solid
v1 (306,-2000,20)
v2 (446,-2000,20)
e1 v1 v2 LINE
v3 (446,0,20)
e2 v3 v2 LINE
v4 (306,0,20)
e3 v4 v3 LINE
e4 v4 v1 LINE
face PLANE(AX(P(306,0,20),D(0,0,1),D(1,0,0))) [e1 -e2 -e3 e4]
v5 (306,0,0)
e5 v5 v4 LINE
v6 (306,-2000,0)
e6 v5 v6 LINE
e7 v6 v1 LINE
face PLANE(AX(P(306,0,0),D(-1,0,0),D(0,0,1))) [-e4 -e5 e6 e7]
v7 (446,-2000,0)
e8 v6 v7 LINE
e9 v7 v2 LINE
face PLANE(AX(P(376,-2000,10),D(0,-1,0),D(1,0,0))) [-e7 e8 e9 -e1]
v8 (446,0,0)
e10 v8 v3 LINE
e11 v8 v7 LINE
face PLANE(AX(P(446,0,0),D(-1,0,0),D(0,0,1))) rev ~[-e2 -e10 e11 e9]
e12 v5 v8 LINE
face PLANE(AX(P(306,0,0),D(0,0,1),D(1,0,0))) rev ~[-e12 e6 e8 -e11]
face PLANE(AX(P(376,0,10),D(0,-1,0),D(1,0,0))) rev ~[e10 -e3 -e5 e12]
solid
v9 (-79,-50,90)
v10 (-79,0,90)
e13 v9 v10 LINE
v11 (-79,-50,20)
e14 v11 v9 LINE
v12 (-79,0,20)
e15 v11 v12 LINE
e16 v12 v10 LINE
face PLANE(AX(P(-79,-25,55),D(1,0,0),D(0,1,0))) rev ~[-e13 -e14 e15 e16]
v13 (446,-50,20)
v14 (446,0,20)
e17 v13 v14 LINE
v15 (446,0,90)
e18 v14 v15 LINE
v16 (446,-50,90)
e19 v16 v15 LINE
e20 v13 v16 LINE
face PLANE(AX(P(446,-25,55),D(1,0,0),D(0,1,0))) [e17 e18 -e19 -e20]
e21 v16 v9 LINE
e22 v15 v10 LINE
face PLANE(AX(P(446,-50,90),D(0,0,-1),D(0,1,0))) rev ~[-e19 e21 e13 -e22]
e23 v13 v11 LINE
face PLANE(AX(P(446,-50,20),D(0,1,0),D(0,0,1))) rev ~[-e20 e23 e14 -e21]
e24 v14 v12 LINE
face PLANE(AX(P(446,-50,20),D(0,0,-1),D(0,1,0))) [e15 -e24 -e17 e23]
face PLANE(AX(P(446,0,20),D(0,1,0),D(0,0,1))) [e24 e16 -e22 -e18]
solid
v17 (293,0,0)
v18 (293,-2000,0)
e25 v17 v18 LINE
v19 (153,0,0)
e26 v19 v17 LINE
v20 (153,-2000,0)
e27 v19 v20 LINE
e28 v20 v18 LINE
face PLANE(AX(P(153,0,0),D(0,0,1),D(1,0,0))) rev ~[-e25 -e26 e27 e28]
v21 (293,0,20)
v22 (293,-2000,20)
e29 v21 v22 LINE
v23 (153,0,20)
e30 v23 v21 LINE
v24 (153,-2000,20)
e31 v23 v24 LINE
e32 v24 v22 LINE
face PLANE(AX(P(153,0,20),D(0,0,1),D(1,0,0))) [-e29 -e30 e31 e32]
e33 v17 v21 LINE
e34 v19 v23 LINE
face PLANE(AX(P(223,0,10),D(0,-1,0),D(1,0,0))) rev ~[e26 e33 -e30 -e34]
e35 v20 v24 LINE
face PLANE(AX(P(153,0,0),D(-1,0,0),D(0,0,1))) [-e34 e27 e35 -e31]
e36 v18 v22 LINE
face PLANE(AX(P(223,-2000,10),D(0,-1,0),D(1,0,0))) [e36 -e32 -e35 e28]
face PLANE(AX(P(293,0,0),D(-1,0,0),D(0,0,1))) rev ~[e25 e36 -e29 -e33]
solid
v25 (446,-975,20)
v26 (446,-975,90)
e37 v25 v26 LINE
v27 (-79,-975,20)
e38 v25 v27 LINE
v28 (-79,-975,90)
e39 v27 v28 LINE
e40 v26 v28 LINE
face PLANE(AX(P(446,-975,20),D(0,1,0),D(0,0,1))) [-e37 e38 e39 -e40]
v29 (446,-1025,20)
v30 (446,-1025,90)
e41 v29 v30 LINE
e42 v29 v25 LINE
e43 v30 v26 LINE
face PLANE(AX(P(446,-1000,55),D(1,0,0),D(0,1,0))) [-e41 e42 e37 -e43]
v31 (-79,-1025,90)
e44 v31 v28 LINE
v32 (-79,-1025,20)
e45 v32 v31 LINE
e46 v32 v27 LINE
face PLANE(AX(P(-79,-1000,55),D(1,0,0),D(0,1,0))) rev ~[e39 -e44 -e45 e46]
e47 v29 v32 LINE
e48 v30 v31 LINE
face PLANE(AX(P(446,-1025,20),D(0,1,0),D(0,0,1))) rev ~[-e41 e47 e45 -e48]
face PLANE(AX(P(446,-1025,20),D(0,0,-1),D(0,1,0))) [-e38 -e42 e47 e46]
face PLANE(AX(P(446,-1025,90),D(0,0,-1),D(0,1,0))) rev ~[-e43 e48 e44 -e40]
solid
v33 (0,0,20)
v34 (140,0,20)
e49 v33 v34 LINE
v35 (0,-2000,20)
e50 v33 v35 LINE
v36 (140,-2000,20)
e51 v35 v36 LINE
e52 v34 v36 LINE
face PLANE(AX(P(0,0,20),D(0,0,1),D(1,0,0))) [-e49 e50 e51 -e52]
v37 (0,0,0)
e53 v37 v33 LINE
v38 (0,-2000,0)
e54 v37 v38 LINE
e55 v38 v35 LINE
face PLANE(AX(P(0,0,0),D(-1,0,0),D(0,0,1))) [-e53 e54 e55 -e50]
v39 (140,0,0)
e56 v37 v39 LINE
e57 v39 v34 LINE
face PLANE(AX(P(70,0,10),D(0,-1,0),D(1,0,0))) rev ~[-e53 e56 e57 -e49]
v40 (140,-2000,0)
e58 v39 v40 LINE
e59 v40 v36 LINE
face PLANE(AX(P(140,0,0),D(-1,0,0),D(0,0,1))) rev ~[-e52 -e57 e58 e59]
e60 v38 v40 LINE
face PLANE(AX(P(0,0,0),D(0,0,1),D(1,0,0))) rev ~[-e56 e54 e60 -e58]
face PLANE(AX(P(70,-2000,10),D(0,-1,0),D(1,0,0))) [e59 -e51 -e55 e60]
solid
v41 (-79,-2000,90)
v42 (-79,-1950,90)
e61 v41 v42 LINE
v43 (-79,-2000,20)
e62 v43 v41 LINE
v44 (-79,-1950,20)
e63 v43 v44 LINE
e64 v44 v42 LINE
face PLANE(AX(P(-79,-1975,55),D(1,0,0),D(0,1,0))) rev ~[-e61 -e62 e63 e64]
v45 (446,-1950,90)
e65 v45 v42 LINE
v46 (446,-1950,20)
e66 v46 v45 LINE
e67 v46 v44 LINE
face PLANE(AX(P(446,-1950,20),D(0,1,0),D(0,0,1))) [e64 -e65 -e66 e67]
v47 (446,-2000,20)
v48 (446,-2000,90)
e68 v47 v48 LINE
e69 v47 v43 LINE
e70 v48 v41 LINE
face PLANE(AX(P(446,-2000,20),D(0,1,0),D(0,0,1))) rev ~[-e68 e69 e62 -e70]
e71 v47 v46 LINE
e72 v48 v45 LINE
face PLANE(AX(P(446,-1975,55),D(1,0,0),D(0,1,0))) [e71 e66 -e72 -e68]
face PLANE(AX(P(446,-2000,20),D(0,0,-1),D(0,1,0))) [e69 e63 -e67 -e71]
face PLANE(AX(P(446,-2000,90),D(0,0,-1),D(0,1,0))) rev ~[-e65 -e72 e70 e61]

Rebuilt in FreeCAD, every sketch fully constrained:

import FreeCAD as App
import Part
import Sketcher
from FreeCAD import Vector

doc = App.newDocument("Part")
params = doc.addObject("Spreadsheet::Sheet", "Params")
for row, (alias, value) in enumerate([
    ("sketch1_width", "140 mm"),
    ("sketch1_height", "20 mm"),
    ("pad1_length", "2000 mm"),
    ("sketch2_width", "50 mm"),
    ("sketch2_height", "70 mm"),
    ("pad2_length", "525 mm"),
], start=1):
    params.set(f"A{row}", alias)
    params.set(f"B{row}", "=" + value)
    params.setAlias(f"B{row}", alias)

body = doc.addObject("PartDesign::Body", "Body")
body.AllowCompound = True

# Sketch on XZ plane
sketch1 = body.newObject("Sketcher::SketchObject", "Sketch")
sketch1.AttachmentSupport = (doc.getObject("XZ_Plane"), [""])
sketch1.MapMode = "FlatFace"
sketch1.addGeometry([
    Part.LineSegment(Vector(0, 20, 0), Vector(0, 0, 0)),  # 0
    Part.LineSegment(Vector(0, 0, 0), Vector(140, 0, 0)),  # 1
    Part.LineSegment(Vector(140, 0, 0), Vector(140, 20, 0)),  # 2
    Part.LineSegment(Vector(140, 20, 0), Vector(0, 20, 0)),  # 3
    Part.LineSegment(Vector(153, 20, 0), Vector(153, 0, 0)),  # 4
    Part.LineSegment(Vector(153, 0, 0), Vector(293, 0, 0)),  # 5
    Part.LineSegment(Vector(293, 0, 0), Vector(293, 20, 0)),  # 6
    Part.LineSegment(Vector(293, 20, 0), Vector(153, 20, 0)),  # 7
    Part.LineSegment(Vector(306, 20, 0), Vector(306, 0, 0)),  # 8
    Part.LineSegment(Vector(306, 0, 0), Vector(446, 0, 0)),  # 9
    Part.LineSegment(Vector(446, 0, 0), Vector(446, 20, 0)),  # 10
    Part.LineSegment(Vector(446, 20, 0), Vector(306, 20, 0)),  # 11
], False)
sketch1.addConstraint([
    Sketcher.Constraint("Coincident", 0, 2, 1, 1),
    Sketcher.Constraint("Coincident", 1, 2, 2, 1),
    Sketcher.Constraint("Coincident", 2, 2, 3, 1),
    Sketcher.Constraint("Coincident", 3, 2, 0, 1),
    Sketcher.Constraint("Coincident", 4, 2, 5, 1),
    Sketcher.Constraint("Coincident", 5, 2, 6, 1),
    Sketcher.Constraint("Coincident", 6, 2, 7, 1),
    Sketcher.Constraint("Coincident", 7, 2, 4, 1),
    Sketcher.Constraint("Coincident", 8, 2, 9, 1),
    Sketcher.Constraint("Coincident", 9, 2, 10, 1),
    Sketcher.Constraint("Coincident", 10, 2, 11, 1),
    Sketcher.Constraint("Coincident", 11, 2, 8, 1),
    Sketcher.Constraint("Vertical", 0),
    Sketcher.Constraint("Horizontal", 1),
    Sketcher.Constraint("Vertical", 2),
    Sketcher.Constraint("Horizontal", 3),
    Sketcher.Constraint("Vertical", 4),
    Sketcher.Constraint("Horizontal", 5),
    Sketcher.Constraint("Vertical", 6),
    Sketcher.Constraint("Horizontal", 7),
    Sketcher.Constraint("Vertical", 8),
    Sketcher.Constraint("Horizontal", 9),
    Sketcher.Constraint("Vertical", 10),
    Sketcher.Constraint("Horizontal", 11),
    Sketcher.Constraint("Coincident", 0, 2, -1, 1),
    Sketcher.Constraint("PointOnObject", 4, 2, -1),
    Sketcher.Constraint("PointOnObject", 8, 2, -1),
    Sketcher.Constraint("Horizontal", 3, 2, 6, 2),
    Sketcher.Constraint("Horizontal", 7, 2, 10, 2),
    Sketcher.Constraint("Equal", 3, 5),
    Sketcher.Constraint("Equal", 7, 9),
    Sketcher.Constraint("DistanceX", 1, 1, 1, 2, 140.0),
    Sketcher.Constraint("DistanceY", 0, 2, 0, 1, 20.0),
    Sketcher.Constraint("DistanceX", -1, 1, 4, 2, 153.0),
    Sketcher.Constraint("DistanceX", -1, 1, 8, 2, 306.0),
])
sketch1.setExpression("Constraints[31]", "Params.sketch1_width")
sketch1.setExpression("Constraints[32]", "Params.sketch1_height")
pad1 = body.newObject("PartDesign::Pad", "Pad")
pad1.Profile = sketch1
pad1.setExpression("Length", "Params.pad1_length")
body2 = doc.addObject("PartDesign::Body", "Body001")
body2.AllowCompound = True

# Sketch on YZ plane
sketch2 = body2.newObject("Sketcher::SketchObject", "Sketch001")
sketch2.AttachmentSupport = (doc.getObject("YZ_Plane001"), [""])
sketch2.MapMode = "FlatFace"
sketch2.AttachmentOffset = App.Placement(Vector(0, 0, 446), App.Rotation())
sketch2.addGeometry([
    Part.LineSegment(Vector(-2000, 90, 0), Vector(-2000, 20, 0)),  # 0
    Part.LineSegment(Vector(-2000, 20, 0), Vector(-1950, 20, 0)),  # 1
    Part.LineSegment(Vector(-1950, 20, 0), Vector(-1950, 90, 0)),  # 2
    Part.LineSegment(Vector(-1950, 90, 0), Vector(-2000, 90, 0)),  # 3
    Part.LineSegment(Vector(-50, 90, 0), Vector(-50, 20, 0)),  # 4
    Part.LineSegment(Vector(-50, 20, 0), Vector(0, 20, 0)),  # 5
    Part.LineSegment(Vector(0, 20, 0), Vector(0, 90, 0)),  # 6
    Part.LineSegment(Vector(0, 90, 0), Vector(-50, 90, 0)),  # 7
    Part.LineSegment(Vector(-1025, 90, 0), Vector(-1025, 20, 0)),  # 8
    Part.LineSegment(Vector(-1025, 20, 0), Vector(-975, 20, 0)),  # 9
    Part.LineSegment(Vector(-975, 20, 0), Vector(-975, 90, 0)),  # 10
    Part.LineSegment(Vector(-975, 90, 0), Vector(-1025, 90, 0)),  # 11
], False)
sketch2.addConstraint([
    Sketcher.Constraint("Coincident", 0, 2, 1, 1),
    Sketcher.Constraint("Coincident", 1, 2, 2, 1),
    Sketcher.Constraint("Coincident", 2, 2, 3, 1),
    Sketcher.Constraint("Coincident", 3, 2, 0, 1),
    Sketcher.Constraint("Coincident", 4, 2, 5, 1),
    Sketcher.Constraint("Coincident", 5, 2, 6, 1),
    Sketcher.Constraint("Coincident", 6, 2, 7, 1),
    Sketcher.Constraint("Coincident", 7, 2, 4, 1),
    Sketcher.Constraint("Coincident", 8, 2, 9, 1),
    Sketcher.Constraint("Coincident", 9, 2, 10, 1),
    Sketcher.Constraint("Coincident", 10, 2, 11, 1),
    Sketcher.Constraint("Coincident", 11, 2, 8, 1),
    Sketcher.Constraint("Vertical", 0),
    Sketcher.Constraint("Horizontal", 1),
    Sketcher.Constraint("Vertical", 2),
    Sketcher.Constraint("Horizontal", 3),
    Sketcher.Constraint("Vertical", 4),
    Sketcher.Constraint("Horizontal", 5),
    Sketcher.Constraint("Vertical", 6),
    Sketcher.Constraint("Horizontal", 7),
    Sketcher.Constraint("Vertical", 8),
    Sketcher.Constraint("Horizontal", 9),
    Sketcher.Constraint("Vertical", 10),
    Sketcher.Constraint("Horizontal", 11),
    Sketcher.Constraint("PointOnObject", 5, 2, -2),
    Sketcher.Constraint("Horizontal", 1, 2, 4, 2),
    Sketcher.Constraint("Horizontal", 3, 2, 6, 2),
    Sketcher.Constraint("Horizontal", 5, 2, 8, 2),
    Sketcher.Constraint("Horizontal", 7, 2, 10, 2),
    Sketcher.Constraint("Equal", 3, 5),
    Sketcher.Constraint("Equal", 7, 9),
    Sketcher.Constraint("DistanceX", 1, 1, 1, 2, 50.0),
    Sketcher.Constraint("DistanceY", 0, 2, 0, 1, 70.0),
    Sketcher.Constraint("DistanceX", 0, 2, -1, 1, 2000.0),
    Sketcher.Constraint("DistanceY", -1, 1, 0, 2, 20.0),
    Sketcher.Constraint("DistanceX", 8, 2, -1, 1, 1025.0),
])
sketch2.setExpression("Constraints[31]", "Params.sketch2_width")
sketch2.setExpression("Constraints[32]", "Params.sketch2_height")
pad2 = body2.newObject("PartDesign::Pad", "Pad001")
pad2.Profile = sketch2
pad2.setExpression("Length", "Params.pad2_length")
pad2.Reversed = True

doc.recompute()
